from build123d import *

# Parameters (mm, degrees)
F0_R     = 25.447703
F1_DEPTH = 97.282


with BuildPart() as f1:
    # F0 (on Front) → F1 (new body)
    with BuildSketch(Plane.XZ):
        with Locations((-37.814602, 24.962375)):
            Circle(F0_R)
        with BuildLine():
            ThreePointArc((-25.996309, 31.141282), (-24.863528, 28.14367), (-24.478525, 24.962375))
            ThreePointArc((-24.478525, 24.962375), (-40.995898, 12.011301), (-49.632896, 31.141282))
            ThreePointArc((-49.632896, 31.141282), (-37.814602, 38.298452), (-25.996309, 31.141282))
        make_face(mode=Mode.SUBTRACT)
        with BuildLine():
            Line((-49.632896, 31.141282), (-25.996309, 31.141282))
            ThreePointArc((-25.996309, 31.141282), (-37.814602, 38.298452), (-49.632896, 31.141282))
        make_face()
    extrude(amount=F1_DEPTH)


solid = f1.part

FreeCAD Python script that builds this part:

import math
import FreeCAD as App
import Part
import Sketcher

doc = App.newDocument("Part")
params = doc.addObject("Spreadsheet::Sheet", "Params")
for row, (alias, value) in enumerate([
    ("pad1_length", "3.83 in"),
], start=1):
    params.set(f"A{row}", alias)
    params.set(f"B{row}", "=" + value)
    params.setAlias(f"B{row}", alias)

body = doc.addObject("PartDesign::Body", "Body")

sketch1 = doc.addObject("Sketcher::SketchObject", "Sketch")
body.addObject(sketch1)
sketch1.AttachmentSupport = (doc.XZ_Plane, [""])
sketch1.MapMode = "FlatFace"
sketch1.addGeometry([
    Part.Circle(App.Vector(-37.814602, 24.962375, 0), App.Vector(0, 0, 1), 25.447703),
    Part.ArcOfCircle(Part.Circle(App.Vector(-37.814602, 24.962375, 0), App.Vector(0, 0, 1), 13.336077), math.radians(152.398277), math.radians(360)),
    Part.LineSegment(App.Vector(-49.632896, 31.141282, 0), App.Vector(-25.996309, 31.141282, 0)),
    Part.ArcOfCircle(Part.Circle(App.Vector(-37.814589, 24.962377, 0), App.Vector(0, 0, 1), 13.336064), math.radians(-0.000011), math.radians(27.60174)),
], False)
sketch1.addConstraint([
    Sketcher.Constraint("Coincident", 1, 1, 2, 1),
    Sketcher.Constraint("Coincident", 2, 2, 3, 2),
    Sketcher.Constraint("Tangent", 3, 1, 1, 2),
    Sketcher.Constraint("Horizontal", 2),
    Sketcher.Constraint("Coincident", 1, 3, 0, 3),
    Sketcher.Constraint("Horizontal", 1, 3, 3, 1),
    Sketcher.Constraint("Diameter", 0, 50.895406),
    Sketcher.Constraint("Radius", 1, 13.336077),
    Sketcher.Constraint("Radius", 3, 13.336064),
    Sketcher.Constraint("DistanceX", 2, 1, 2, 2, 23.636587),
    Sketcher.Constraint("DistanceX", 3, 3, -1, 1, 37.814589),
    Sketcher.Constraint("DistanceY", -1, 1, 1, 1, 31.141282),
])
pad1 = doc.addObject("PartDesign::Pad", "Pad")
body.addObject(pad1)
pad1.Profile = sketch1
pad1.setExpression("Length", "Params.pad1_length")

doc.recompute()
